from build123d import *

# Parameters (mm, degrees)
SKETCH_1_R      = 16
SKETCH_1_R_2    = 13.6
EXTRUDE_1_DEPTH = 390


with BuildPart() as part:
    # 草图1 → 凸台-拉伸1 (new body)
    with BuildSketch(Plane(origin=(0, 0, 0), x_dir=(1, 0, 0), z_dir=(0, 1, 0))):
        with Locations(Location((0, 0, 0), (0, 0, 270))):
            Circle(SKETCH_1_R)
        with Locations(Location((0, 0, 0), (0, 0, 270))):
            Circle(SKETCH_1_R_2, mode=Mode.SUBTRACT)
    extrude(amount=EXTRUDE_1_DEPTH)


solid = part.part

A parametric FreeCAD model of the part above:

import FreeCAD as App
import Part
import Sketcher
from FreeCAD import Vector
Q = App.Units.Quantity

doc = App.newDocument("Part")
params = doc.addObject("Spreadsheet::Sheet", "Params")
for row, (alias, value) in enumerate([
    ("sketch1_diameter", "32 mm"),
    ("sketch1_diameter2", "27.2 mm"),
    ("pad1_length", "390 mm"),
], start=1):
    params.set(f"A{row}", alias)
    params.set(f"B{row}", "=" + value)
    params.setAlias(f"B{row}", alias)

body = doc.addObject("PartDesign::Body", "Body")

# Sketch on XZ plane
sketch1 = doc.addObject("Sketcher::SketchObject", "Sketch")
body.addObject(sketch1)
sketch1.AttachmentSupport = (doc.XZ_Plane, [""])
sketch1.MapMode = "FlatFace"
sketch1.addGeometry([
    Part.Circle(Vector(0, 0, 0), Vector(0, 0, 1), 16),
    Part.Circle(Vector(0, 0, 0), Vector(0, 0, 1), 13.6),
], False)
sketch1.addConstraint([
    Sketcher.Constraint("Coincident", 0, 3, -1, 1),
    Sketcher.Constraint("Coincident", 1, 3, -1, 1),
    Sketcher.Constraint("Diameter", 0, Q("32 mm")),
    Sketcher.Constraint("Diameter", 1, Q("27.2 mm")),
])
sketch1.setExpression("Constraints[2]", "Params.sketch1_diameter")
sketch1.setExpression("Constraints[3]", "Params.sketch1_diameter2")
pad1 = doc.addObject("PartDesign::Pad", "Pad")
body.addObject(pad1)
pad1.Profile = sketch1
pad1.setExpression("Length", "Params.pad1_length")
pad1.Reversed = True

doc.recompute()
